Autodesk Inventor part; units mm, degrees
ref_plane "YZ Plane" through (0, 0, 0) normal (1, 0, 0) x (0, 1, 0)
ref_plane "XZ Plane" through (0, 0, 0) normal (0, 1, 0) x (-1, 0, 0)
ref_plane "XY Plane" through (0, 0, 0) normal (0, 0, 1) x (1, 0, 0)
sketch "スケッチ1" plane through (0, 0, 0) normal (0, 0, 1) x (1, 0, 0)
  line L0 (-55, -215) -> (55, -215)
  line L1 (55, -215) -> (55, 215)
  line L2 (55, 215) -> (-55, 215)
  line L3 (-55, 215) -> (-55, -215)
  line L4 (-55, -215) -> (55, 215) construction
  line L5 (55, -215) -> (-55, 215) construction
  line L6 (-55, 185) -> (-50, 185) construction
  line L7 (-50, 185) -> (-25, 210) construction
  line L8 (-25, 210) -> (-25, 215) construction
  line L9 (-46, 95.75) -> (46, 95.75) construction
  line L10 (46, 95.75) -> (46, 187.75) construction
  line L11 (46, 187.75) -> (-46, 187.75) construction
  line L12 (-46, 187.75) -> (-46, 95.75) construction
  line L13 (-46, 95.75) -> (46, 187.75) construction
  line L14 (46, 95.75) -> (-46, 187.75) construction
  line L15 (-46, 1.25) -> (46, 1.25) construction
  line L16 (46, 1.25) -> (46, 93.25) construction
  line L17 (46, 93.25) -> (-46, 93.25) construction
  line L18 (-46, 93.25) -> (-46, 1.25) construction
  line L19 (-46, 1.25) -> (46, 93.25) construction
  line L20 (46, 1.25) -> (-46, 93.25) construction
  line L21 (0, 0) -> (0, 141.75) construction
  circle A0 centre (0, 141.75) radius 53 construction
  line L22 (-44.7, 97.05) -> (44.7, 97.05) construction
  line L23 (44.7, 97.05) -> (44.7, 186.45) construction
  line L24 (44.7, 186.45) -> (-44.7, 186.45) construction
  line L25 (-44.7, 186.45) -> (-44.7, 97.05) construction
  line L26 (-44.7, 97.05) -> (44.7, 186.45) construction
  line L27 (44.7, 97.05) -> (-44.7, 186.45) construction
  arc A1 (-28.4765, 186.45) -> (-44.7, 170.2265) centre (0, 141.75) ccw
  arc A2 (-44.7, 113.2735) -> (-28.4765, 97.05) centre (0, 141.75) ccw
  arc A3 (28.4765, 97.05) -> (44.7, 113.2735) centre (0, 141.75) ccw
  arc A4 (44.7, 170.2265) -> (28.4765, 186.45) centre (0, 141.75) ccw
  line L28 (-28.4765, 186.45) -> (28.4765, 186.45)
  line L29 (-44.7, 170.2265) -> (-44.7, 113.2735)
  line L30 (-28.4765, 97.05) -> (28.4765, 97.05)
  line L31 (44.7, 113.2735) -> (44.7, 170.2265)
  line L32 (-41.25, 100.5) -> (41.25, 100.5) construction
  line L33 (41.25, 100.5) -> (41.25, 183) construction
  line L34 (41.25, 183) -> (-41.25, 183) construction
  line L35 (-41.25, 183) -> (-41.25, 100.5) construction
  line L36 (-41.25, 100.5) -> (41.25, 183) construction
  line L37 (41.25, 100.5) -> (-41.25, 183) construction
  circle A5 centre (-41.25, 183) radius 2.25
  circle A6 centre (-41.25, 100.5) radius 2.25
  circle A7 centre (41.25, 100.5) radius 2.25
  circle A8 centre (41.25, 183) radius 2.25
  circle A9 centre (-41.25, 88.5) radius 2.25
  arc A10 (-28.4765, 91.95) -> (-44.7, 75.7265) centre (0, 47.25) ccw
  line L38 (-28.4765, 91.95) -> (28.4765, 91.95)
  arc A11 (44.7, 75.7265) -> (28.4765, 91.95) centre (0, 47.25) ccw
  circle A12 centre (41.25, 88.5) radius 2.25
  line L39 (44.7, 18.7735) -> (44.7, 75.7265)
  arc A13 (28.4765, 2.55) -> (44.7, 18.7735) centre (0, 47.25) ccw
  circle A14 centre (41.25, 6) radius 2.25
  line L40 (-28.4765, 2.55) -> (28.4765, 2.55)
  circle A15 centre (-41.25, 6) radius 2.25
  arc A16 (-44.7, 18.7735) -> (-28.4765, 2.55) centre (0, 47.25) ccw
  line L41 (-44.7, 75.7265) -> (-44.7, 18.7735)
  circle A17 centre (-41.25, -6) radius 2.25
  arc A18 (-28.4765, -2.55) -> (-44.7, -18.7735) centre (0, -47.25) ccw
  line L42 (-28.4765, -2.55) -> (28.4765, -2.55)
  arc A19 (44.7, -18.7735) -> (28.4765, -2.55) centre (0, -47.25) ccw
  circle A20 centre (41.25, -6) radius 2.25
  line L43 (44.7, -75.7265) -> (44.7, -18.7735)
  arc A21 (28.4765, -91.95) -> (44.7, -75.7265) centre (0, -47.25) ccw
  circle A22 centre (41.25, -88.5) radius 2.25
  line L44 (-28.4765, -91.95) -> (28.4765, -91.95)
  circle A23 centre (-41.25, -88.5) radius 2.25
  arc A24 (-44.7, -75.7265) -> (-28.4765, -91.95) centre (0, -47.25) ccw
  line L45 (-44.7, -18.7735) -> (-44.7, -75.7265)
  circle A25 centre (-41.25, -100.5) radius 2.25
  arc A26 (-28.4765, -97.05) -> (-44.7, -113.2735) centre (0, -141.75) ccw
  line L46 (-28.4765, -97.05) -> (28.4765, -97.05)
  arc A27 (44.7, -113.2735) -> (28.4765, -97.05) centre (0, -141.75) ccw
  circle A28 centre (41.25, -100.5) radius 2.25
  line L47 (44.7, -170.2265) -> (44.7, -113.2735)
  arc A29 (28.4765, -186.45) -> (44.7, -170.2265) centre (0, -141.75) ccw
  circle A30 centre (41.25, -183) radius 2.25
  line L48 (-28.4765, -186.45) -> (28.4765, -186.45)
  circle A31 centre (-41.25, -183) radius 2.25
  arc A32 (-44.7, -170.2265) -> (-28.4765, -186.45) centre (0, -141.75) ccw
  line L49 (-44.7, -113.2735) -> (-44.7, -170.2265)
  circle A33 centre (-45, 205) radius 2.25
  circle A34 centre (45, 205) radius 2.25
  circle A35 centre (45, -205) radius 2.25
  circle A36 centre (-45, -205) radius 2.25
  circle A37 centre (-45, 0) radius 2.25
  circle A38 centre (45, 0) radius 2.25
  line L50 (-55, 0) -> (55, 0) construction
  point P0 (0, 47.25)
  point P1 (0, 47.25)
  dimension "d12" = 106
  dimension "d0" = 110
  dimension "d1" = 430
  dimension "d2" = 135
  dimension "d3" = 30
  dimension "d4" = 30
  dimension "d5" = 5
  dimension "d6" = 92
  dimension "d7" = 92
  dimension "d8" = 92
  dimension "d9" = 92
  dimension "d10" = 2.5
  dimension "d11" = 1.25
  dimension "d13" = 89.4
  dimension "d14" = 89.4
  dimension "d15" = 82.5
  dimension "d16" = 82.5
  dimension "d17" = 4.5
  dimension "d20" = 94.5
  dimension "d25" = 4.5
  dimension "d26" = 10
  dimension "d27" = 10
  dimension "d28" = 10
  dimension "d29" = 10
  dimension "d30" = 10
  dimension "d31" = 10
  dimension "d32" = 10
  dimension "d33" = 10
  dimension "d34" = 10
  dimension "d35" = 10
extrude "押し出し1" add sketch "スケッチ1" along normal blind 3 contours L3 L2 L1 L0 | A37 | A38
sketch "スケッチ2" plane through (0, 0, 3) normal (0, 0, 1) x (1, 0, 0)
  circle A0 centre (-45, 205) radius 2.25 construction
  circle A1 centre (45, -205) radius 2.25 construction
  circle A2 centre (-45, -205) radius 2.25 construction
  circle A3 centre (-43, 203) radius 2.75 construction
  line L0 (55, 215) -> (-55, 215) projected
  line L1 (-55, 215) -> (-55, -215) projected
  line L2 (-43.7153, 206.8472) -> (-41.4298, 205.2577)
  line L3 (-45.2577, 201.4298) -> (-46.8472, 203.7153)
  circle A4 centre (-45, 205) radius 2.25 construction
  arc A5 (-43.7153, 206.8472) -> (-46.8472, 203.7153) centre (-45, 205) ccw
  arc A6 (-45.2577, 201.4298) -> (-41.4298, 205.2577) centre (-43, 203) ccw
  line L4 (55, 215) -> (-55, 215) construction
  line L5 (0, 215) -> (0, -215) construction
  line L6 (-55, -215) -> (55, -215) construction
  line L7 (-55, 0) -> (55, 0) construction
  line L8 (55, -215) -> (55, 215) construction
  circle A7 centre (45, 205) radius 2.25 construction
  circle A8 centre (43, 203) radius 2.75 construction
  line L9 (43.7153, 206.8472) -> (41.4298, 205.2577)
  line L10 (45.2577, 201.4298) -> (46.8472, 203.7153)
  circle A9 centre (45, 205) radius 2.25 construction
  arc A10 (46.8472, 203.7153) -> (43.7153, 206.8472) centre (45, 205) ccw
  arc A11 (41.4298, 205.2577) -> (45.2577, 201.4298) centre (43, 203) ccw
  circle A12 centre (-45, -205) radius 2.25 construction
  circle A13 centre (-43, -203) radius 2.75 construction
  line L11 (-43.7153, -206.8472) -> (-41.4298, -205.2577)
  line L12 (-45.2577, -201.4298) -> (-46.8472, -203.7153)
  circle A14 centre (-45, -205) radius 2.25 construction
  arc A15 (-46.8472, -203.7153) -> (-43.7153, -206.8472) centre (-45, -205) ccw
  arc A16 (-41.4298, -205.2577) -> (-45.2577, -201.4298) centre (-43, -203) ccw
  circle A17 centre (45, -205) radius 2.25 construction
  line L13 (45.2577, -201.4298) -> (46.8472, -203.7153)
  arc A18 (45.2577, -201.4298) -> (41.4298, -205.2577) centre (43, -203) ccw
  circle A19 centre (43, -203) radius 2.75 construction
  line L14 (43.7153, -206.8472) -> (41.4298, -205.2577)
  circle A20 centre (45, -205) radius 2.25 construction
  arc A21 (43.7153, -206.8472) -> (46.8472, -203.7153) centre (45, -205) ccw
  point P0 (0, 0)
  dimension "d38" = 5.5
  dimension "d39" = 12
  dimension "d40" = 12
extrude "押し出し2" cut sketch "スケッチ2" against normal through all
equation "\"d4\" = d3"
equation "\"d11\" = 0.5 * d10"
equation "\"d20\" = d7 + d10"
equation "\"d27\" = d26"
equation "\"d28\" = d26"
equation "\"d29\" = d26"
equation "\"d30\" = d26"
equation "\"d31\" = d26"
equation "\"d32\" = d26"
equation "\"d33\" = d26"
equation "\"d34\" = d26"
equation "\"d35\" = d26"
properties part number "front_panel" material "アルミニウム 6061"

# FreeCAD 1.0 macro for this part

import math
import FreeCAD as App
import Part
import Sketcher

V = App.Vector
Q = App.Units.Quantity

doc = App.newDocument("Part")
body = doc.addObject("PartDesign::Body", "Body")

# Sketch on XY plane
sketch1 = doc.addObject("Sketcher::SketchObject", "Sketch")
body.addObject(sketch1)
sketch1.AttachmentSupport = (doc.XY_Plane, [""])
sketch1.MapMode = "FlatFace"
sketch1.addGeometry([
    Part.LineSegment(V(-55, 215, 0), V(-55, -215, 0)),  # 0
    Part.LineSegment(V(-55, -215, 0), V(55, -215, 0)),  # 1
    Part.LineSegment(V(55, -215, 0), V(55, 215, 0)),  # 2
    Part.LineSegment(V(55, 215, 0), V(-55, 215, 0)),  # 3
    Part.Circle(V(-45, -205, 0), V(0, 0, 1), 2.2),  # 4
    Part.Circle(V(-41.2, -183, 0), V(0, 0, 1), 2.2),  # 5
    Part.Circle(V(-41.2, -100.5, 0), V(0, 0, 1), 2.2),  # 6
    Part.Circle(V(-41.2, -88.5, 0), V(0, 0, 1), 2.2),  # 7
    Part.Circle(V(-41.2, -6, 0), V(0, 0, 1), 2.2),  # 8
    Part.ArcOfCircle(Part.Circle(V(0, -141.8, 0), V(0, 0, 1), 53), math.radians(122), math.radians(148)),  # 9
    Part.LineSegment(V(-28.5, -97, 0), V(28.5, -97, 0)),  # 10
    Part.ArcOfCircle(Part.Circle(V(0, -141.8, 0), V(0, 0, 1), 53), math.radians(32), math.radians(58)),  # 11
    Part.LineSegment(V(44.7, -113.3, 0), V(44.7, -170.2, 0)),  # 12
    Part.ArcOfCircle(Part.Circle(V(0, -141.8, 0), V(0, 0, 1), 53), math.radians(-58), math.radians(-32)),  # 13
    Part.LineSegment(V(28.5, -186.4, 0), V(-28.5, -186.4, 0)),  # 14
    Part.ArcOfCircle(Part.Circle(V(0, -141.8, 0), V(0, 0, 1), 53), math.radians(-148), math.radians(-122)),  # 15
    Part.LineSegment(V(-44.7, -170.2, 0), V(-44.7, -113.3, 0)),  # 16
    Part.Circle(V(45, -205, 0), V(0, 0, 1), 2.2),  # 17
    Part.Circle(V(41.2, -183, 0), V(0, 0, 1), 2.2),  # 18
    Part.ArcOfCircle(Part.Circle(V(0, -47.2, 0), V(0, 0, 1), 53), math.radians(122), math.radians(148)),  # 19
    Part.LineSegment(V(-28.5, -2.5, 0), V(28.5, -2.5, 0)),  # 20
    Part.ArcOfCircle(Part.Circle(V(0, -47.2, 0), V(0, 0, 1), 53), math.radians(32), math.radians(58)),  # 21
    Part.LineSegment(V(44.7, -18.8, 0), V(44.7, -75.7, 0)),  # 22
    Part.ArcOfCircle(Part.Circle(V(0, -47.2, 0), V(0, 0, 1), 53), math.radians(-58), math.radians(-32)),  # 23
    Part.LineSegment(V(28.5, -92, 0), V(-28.5, -92, 0)),  # 24
    Part.ArcOfCircle(Part.Circle(V(0, -47.2, 0), V(0, 0, 1), 53), math.radians(-148), math.radians(-122)),  # 25
    Part.LineSegment(V(-44.7, -75.7, 0), V(-44.7, -18.8, 0)),  # 26
    Part.Circle(V(41.2, -100.5, 0), V(0, 0, 1), 2.2),  # 27
    Part.Circle(V(41.2, -88.5, 0), V(0, 0, 1), 2.2),  # 28
    Part.Circle(V(41.2, -6, 0), V(0, 0, 1), 2.2),  # 29
    Part.Circle(V(-41.2, 6, 0), V(0, 0, 1), 2.2),  # 30
    Part.Circle(V(-41.2, 88.5, 0), V(0, 0, 1), 2.2),  # 31
    Part.Circle(V(-41.2, 100.5, 0), V(0, 0, 1), 2.2),  # 32
    Part.Circle(V(-45, 205, 0), V(0, 0, 1), 2.2),  # 33
    Part.Circle(V(-41.2, 183, 0), V(0, 0, 1), 2.2),  # 34
    Part.ArcOfCircle(Part.Circle(V(0, 47.2, 0), V(0, 0, 1), 53), math.radians(122), math.radians(148)),  # 35
    Part.LineSegment(V(-28.5, 92, 0), V(28.5, 92, 0)),  # 36
    Part.ArcOfCircle(Part.Circle(V(0, 47.2, 0), V(0, 0, 1), 53), math.radians(32), math.radians(58)),  # 37
    Part.LineSegment(V(44.7, 75.7, 0), V(44.7, 18.8, 0)),  # 38
    Part.ArcOfCircle(Part.Circle(V(0, 47.2, 0), V(0, 0, 1), 53), math.radians(-58), math.radians(-32)),  # 39
    Part.LineSegment(V(28.5, 2.5, 0), V(-28.5, 2.5, 0)),  # 40
    Part.ArcOfCircle(Part.Circle(V(0, 47.2, 0), V(0, 0, 1), 53), math.radians(-148), math.radians(-122)),  # 41
    Part.LineSegment(V(-44.7, 18.8, 0), V(-44.7, 75.7, 0)),  # 42
    Part.Circle(V(41.2, 6, 0), V(0, 0, 1), 2.2),  # 43
    Part.Circle(V(41.2, 88.5, 0), V(0, 0, 1), 2.2),  # 44
    Part.Circle(V(41.2, 100.5, 0), V(0, 0, 1), 2.2),  # 45
    Part.ArcOfCircle(Part.Circle(V(0, 141.8, 0), V(0, 0, 1), 53), math.radians(122), math.radians(148)),  # 46
    Part.LineSegment(V(-28.5, 186.4, 0), V(28.5, 186.4, 0)),  # 47
    Part.ArcOfCircle(Part.Circle(V(0, 141.8, 0), V(0, 0, 1), 53), math.radians(32), math.radians(58)),  # 48
    Part.LineSegment(V(44.7, 170.2, 0), V(44.7, 113.3, 0)),  # 49
    Part.ArcOfCircle(Part.Circle(V(0, 141.8, 0), V(0, 0, 1), 53), math.radians(-58), math.radians(-32)),  # 50
    Part.LineSegment(V(28.5, 97, 0), V(-28.5, 97, 0)),  # 51
    Part.ArcOfCircle(Part.Circle(V(0, 141.8, 0), V(0, 0, 1), 53), math.radians(-148), math.radians(-122)),  # 52
    Part.LineSegment(V(-44.7, 113.3, 0), V(-44.7, 170.2, 0)),  # 53
    Part.Circle(V(41.2, 183, 0), V(0, 0, 1), 2.2),  # 54
    Part.Circle(V(45, 205, 0), V(0, 0, 1), 2.2),  # 55
], False)
sketch1.addConstraint([
    Sketcher.Constraint("Coincident", 0, 2, 1, 1),
    Sketcher.Constraint("Coincident", 1, 2, 2, 1),
    Sketcher.Constraint("Coincident", 2, 2, 3, 1),
    Sketcher.Constraint("Coincident", 3, 2, 0, 1),
    Sketcher.Constraint("Coincident", 9, 1, 10, 1),
    Sketcher.Constraint("Coincident", 10, 2, 11, 2),
    Sketcher.Constraint("Coincident", 11, 1, 12, 1),
    Sketcher.Constraint("Coincident", 12, 2, 13, 2),
    Sketcher.Constraint("Coincident", 13, 1, 14, 1),
    Sketcher.Constraint("Coincident", 14, 2, 15, 2),
    Sketcher.Constraint("Coincident", 15, 1, 16, 1),
    Sketcher.Constraint("Coincident", 16, 2, 9, 2),
    Sketcher.Constraint("Coincident", 19, 1, 20, 1),
    Sketcher.Constraint("Coincident", 20, 2, 21, 2),
    Sketcher.Constraint("Coincident", 21, 1, 22, 1),
    Sketcher.Constraint("Coincident", 22, 2, 23, 2),
    Sketcher.Constraint("Coincident", 23, 1, 24, 1),
    Sketcher.Constraint("Coincident", 24, 2, 25, 2),
    Sketcher.Constraint("Coincident", 25, 1, 26, 1),
    Sketcher.Constraint("Coincident", 26, 2, 19, 2),
    Sketcher.Constraint("Coincident", 35, 1, 36, 1),
    Sketcher.Constraint("Coincident", 36, 2, 37, 2),
    Sketcher.Constraint("Coincident", 37, 1, 38, 1),
    Sketcher.Constraint("Coincident", 38, 2, 39, 2),
    Sketcher.Constraint("Coincident", 39, 1, 40, 1),
    Sketcher.Constraint("Coincident", 40, 2, 41, 2),
    Sketcher.Constraint("Coincident", 41, 1, 42, 1),
    Sketcher.Constraint("Coincident", 42, 2, 35, 2),
    Sketcher.Constraint("Coincident", 46, 1, 47, 1),
    Sketcher.Constraint("Coincident", 47, 2, 48, 2),
    Sketcher.Constraint("Coincident", 48, 1, 49, 1),
    Sketcher.Constraint("Coincident", 49, 2, 50, 2),
    Sketcher.Constraint("Coincident", 50, 1, 51, 1),
    Sketcher.Constraint("Coincident", 51, 2, 52, 2),
    Sketcher.Constraint("Coincident", 52, 1, 53, 1),
    Sketcher.Constraint("Coincident", 53, 2, 46, 2),
    Sketcher.Constraint("Vertical", 0),
    Sketcher.Constraint("Horizontal", 1),
    Sketcher.Constraint("Vertical", 2),
    Sketcher.Constraint("Horizontal", 3),
    Sketcher.Constraint("Horizontal", 10),
    Sketcher.Constraint("Vertical", 12),
    Sketcher.Constraint("Horizontal", 14),
    Sketcher.Constraint("Vertical", 16),
    Sketcher.Constraint("Horizontal", 20),
    Sketcher.Constraint("Vertical", 22),
    Sketcher.Constraint("Horizontal", 24),
    Sketcher.Constraint("Vertical", 26),
    Sketcher.Constraint("Horizontal", 36),
    Sketcher.Constraint("Vertical", 38),
    Sketcher.Constraint("Horizontal", 40),
    Sketcher.Constraint("Vertical", 42),
    Sketcher.Constraint("Horizontal", 47),
    Sketcher.Constraint("Vertical", 49),
    Sketcher.Constraint("Horizontal", 51),
    Sketcher.Constraint("Vertical", 53),
    Sketcher.Constraint("Coincident", 11, 3, 9, 3),
    Sketcher.Constraint("Coincident", 13, 3, 9, 3),
    Sketcher.Constraint("Coincident", 15, 3, 9, 3),
    Sketcher.Constraint("Coincident", 21, 3, 19, 3),
    Sketcher.Constraint("Coincident", 23, 3, 19, 3),
    Sketcher.Constraint("Coincident", 25, 3, 19, 3),
    Sketcher.Constraint("Coincident", 37, 3, 35, 3),
    Sketcher.Constraint("Coincident", 39, 3, 35, 3),
    Sketcher.Constraint("Coincident", 41, 3, 35, 3),
    Sketcher.Constraint("Coincident", 48, 3, 46, 3),
    Sketcher.Constraint("Coincident", 50, 3, 46, 3),
    Sketcher.Constraint("Coincident", 52, 3, 46, 3),
    Sketcher.Constraint("Equal", 4, 5),
    Sketcher.Constraint("Equal", 5, 6),
    Sketcher.Constraint("Equal", 6, 7),
    Sketcher.Constraint("Equal", 7, 8),
    Sketcher.Constraint("Equal", 9, 11),
    Sketcher.Constraint("Equal", 11, 13),
    Sketcher.Constraint("Equal", 13, 15),
    Sketcher.Constraint("Equal", 8, 17),
    Sketcher.Constraint("Equal", 17, 18),
    Sketcher.Constraint("Equal", 15, 19),
    Sketcher.Constraint("Equal", 19, 21),
    Sketcher.Constraint("Equal", 21, 23),
    Sketcher.Constraint("Equal", 23, 25),
    Sketcher.Constraint("Equal", 18, 27),
    Sketcher.Constraint("Equal", 27, 28),
    Sketcher.Constraint("Equal", 28, 29),
    Sketcher.Constraint("Equal", 29, 30),
    Sketcher.Constraint("Equal", 30, 31),
    Sketcher.Constraint("Equal", 31, 32),
    Sketcher.Constraint("Equal", 32, 33),
    Sketcher.Constraint("Equal", 33, 34),
    Sketcher.Constraint("Equal", 25, 35),
    Sketcher.Constraint("Equal", 35, 37),
    Sketcher.Constraint("Equal", 37, 39),
    Sketcher.Constraint("Equal", 39, 41),
    Sketcher.Constraint("Equal", 34, 43),
    Sketcher.Constraint("Equal", 43, 44),
    Sketcher.Constraint("Equal", 44, 45),
    Sketcher.Constraint("Equal", 41, 46),
    Sketcher.Constraint("Equal", 46, 48),
    Sketcher.Constraint("Equal", 48, 50),
    Sketcher.Constraint("Equal", 50, 52),
    Sketcher.Constraint("Equal", 45, 54),
    Sketcher.Constraint("Equal", 54, 55),
    Sketcher.Constraint("Symmetric", 29, 3, 30, 3, -1, 1),
    Sketcher.Constraint("Symmetric", 28, 3, 31, 3, -1, 1),
    Sketcher.Constraint("Symmetric", 27, 3, 32, 3, -1, 1),
    Sketcher.Constraint("Symmetric", 17, 3, 33, 3, -1, 1),
    Sketcher.Constraint("Symmetric", 18, 3, 34, 3, -1, 1),
    Sketcher.Constraint("Symmetric", 19, 3, 35, 3, -1, 1),
    Sketcher.Constraint("Symmetric", 8, 3, 43, 3, -1, 1),
    Sketcher.Constraint("Symmetric", 7, 3, 44, 3, -1, 1),
    Sketcher.Constraint("Symmetric", 6, 3, 45, 3, -1, 1),
    Sketcher.Constraint("Symmetric", 9, 3, 46, 3, -1, 1),
    Sketcher.Constraint("Symmetric", 5, 3, 54, 3, -1, 1),
    Sketcher.Constraint("Symmetric", 4, 3, 55, 3, -1, 1),
    Sketcher.Constraint("Symmetric", 0, 2, 2, 2, -1, 1),
    Sketcher.Constraint("Symmetric", 4, 3, 17, 3, -2),
    Sketcher.Constraint("Symmetric", 5, 3, 18, 3, -2),
    Sketcher.Constraint("Symmetric", 6, 3, 27, 3, -2),
    Sketcher.Constraint("Symmetric", 7, 3, 28, 3, -2),
    Sketcher.Constraint("Symmetric", 8, 3, 29, 3, -2),
    Sketcher.Constraint("Symmetric", 12, 2, 15, 1, -2),
    Sketcher.Constraint("Symmetric", 22, 2, 25, 1, -2),
    Sketcher.Constraint("Horizontal", 38, 2, 41, 1),
    Sketcher.Constraint("Horizontal", 49, 2, 52, 1),
    Sketcher.Constraint("Vertical", 5, 3, 6, 3),
    Sketcher.Constraint("Vertical", 6, 3, 7, 3),
    Sketcher.Constraint("Vertical", 7, 3, 8, 3),
    Sketcher.Constraint("Vertical", 10, 2, 13, 1),
    Sketcher.Constraint("Vertical", 14, 2, 19, 1),
    Sketcher.Constraint("Vertical", 12, 2, 21, 1),
    Sketcher.Constraint("Vertical", 20, 2, 23, 1),
    Sketcher.Constraint("Vertical", 24, 2, 35, 1),
    Sketcher.Constraint("Vertical", 22, 2, 37, 1),
    Sketcher.Constraint("Vertical", 36, 2, 39, 1),
    Sketcher.Constraint("Vertical", 40, 2, 46, 1),
    Sketcher.Constraint("Vertical", 38, 2, 48, 1),
    Sketcher.Constraint("Vertical", 47, 2, 50, 1),
    Sketcher.Constraint("Equal", 51, 12),
    Sketcher.Constraint("Radius", 9, Q("53 mm")),
    Sketcher.Constraint("Diameter", 4, Q("4.5 mm")),
    Sketcher.Constraint("DistanceX", 1, 1, 1, 2, Q("110 mm")),
    Sketcher.Constraint("DistanceY", 0, 2, 0, 1, Q("430 mm")),
    Sketcher.Constraint("DistanceX", 4, 3, -1, 1, Q("45 mm")),
    Sketcher.Constraint("DistanceY", 4, 3, -1, 1, Q("205 mm")),
    Sketcher.Constraint("DistanceY", 5, 3, -1, 1, Q("183 mm")),
    Sketcher.Constraint("DistanceY", 8, 3, -1, 1, Q("6 mm")),
    Sketcher.Constraint("DistanceY", 6, 3, -1, 1, Q("100.5 mm")),
    Sketcher.Constraint("DistanceY", 7, 3, -1, 1, Q("88.5 mm")),
    Sketcher.Constraint("DistanceX", -1, 1, 11, 1, Q("44.7 mm")),
    Sketcher.Constraint("DistanceX", 5, 3, -1, 1, Q("41.25 mm")),
    Sketcher.Constraint("DistanceY", 9, 3, -1, 1, Q("141.75 mm")),
    Sketcher.Constraint("DistanceY", 19, 3, -1, 1, Q("47.25 mm")),
])
pad1 = doc.addObject("PartDesign::Pad", "Pad")
body.addObject(pad1)
pad1.Profile = sketch1
pad1.Length = 3

# Sketch on XY plane
sketch2 = doc.addObject("Sketcher::SketchObject", "Sketch001")
body.addObject(sketch2)
sketch2.AttachmentSupport = (doc.XY_Plane, [""])
sketch2.MapMode = "FlatFace"
sketch2.AttachmentOffset = App.Placement(V(0, 0, 3), App.Rotation())
sketch2.addGeometry([
    Part.LineSegment(V(-41.4, 205.3, 0), V(-43.7, 206.8, 0)),  # 0
    Part.ArcOfCircle(Part.Circle(V(-45, 205, 0), V(0, 0, 1), 2.3), math.radians(55), math.radians(215)),  # 1
    Part.LineSegment(V(-46.8, 203.7, 0), V(-45.3, 201.4, 0)),  # 2
    Part.ArcOfCircle(Part.Circle(V(-43, 203, 0), V(0, 0, 1), 2.8), math.radians(-145), math.radians(55)),  # 3
    Part.ArcOfCircle(Part.Circle(V(45, 205, 0), V(0, 0, 1), 2.3), math.radians(-35), math.radians(125)),  # 4
    Part.LineSegment(V(43.7, 206.8, 0), V(41.4, 205.3, 0)),  # 5
    Part.ArcOfCircle(Part.Circle(V(43, 203, 0), V(0, 0, 1), 2.8), math.radians(125), math.radians(325)),  # 6
    Part.LineSegment(V(45.3, 201.4, 0), V(46.8, 203.7, 0)),  # 7
    Part.ArcOfCircle(Part.Circle(V(-45, -205, 0), V(0, 0, 1), 2.3), math.radians(145), math.radians(305)),  # 8
    Part.LineSegment(V(-43.7, -206.8, 0), V(-41.4, -205.3, 0)),  # 9
    Part.ArcOfCircle(Part.Circle(V(-43, -203, 0), V(0, 0, 1), 2.8), math.radians(-55), math.radians(145)),  # 10
    Part.LineSegment(V(-45.3, -201.4, 0), V(-46.8, -203.7, 0)),  # 11
    Part.LineSegment(V(46.8, -203.7, 0), V(45.3, -201.4, 0)),  # 12
    Part.ArcOfCircle(Part.Circle(V(43, -203, 0), V(0, 0, 1), 2.8), math.radians(35), math.radians(235)),  # 13
    Part.LineSegment(V(41.4, -205.3, 0), V(43.7, -206.8, 0)),  # 14
    Part.ArcOfCircle(Part.Circle(V(45, -205, 0), V(0, 0, 1), 2.3), math.radians(-125), math.radians(35)),  # 15
], False)
sketch2.addConstraint([
    Sketcher.Constraint("Tangent", 0, 2, 1, 1),
    Sketcher.Constraint("Tangent", 1, 2, 2, 1),
    Sketcher.Constraint("Tangent", 2, 2, 3, 1),
    Sketcher.Constraint("Tangent", 3, 2, 0, 1),
    Sketcher.Constraint("Tangent", 4, 2, 5, 1),
    Sketcher.Constraint("Tangent", 5, 2, 6, 1),
    Sketcher.Constraint("Tangent", 6, 2, 7, 1),
    Sketcher.Constraint("Tangent", 7, 2, 4, 1),
    Sketcher.Constraint("Tangent", 8, 2, 9, 1),
    Sketcher.Constraint("Tangent", 9, 2, 10, 1),
    Sketcher.Constraint("Tangent", 10, 2, 11, 1),
    Sketcher.Constraint("Tangent", 11, 2, 8, 1),
    Sketcher.Constraint("Tangent", 12, 2, 13, 1),
    Sketcher.Constraint("Tangent", 13, 2, 14, 1),
    Sketcher.Constraint("Tangent", 14, 2, 15, 1),
    Sketcher.Constraint("Tangent", 15, 2, 12, 1),
    Sketcher.Constraint("Equal", 1, 4),
    Sketcher.Constraint("Equal", 3, 6),
    Sketcher.Constraint("Equal", 4, 8),
    Sketcher.Constraint("Equal", 6, 10),
    Sketcher.Constraint("Equal", 10, 13),
    Sketcher.Constraint("Equal", 8, 15),
    Sketcher.Constraint("Symmetric", 4, 3, 8, 3, -1, 1),
    Sketcher.Constraint("Symmetric", 6, 3, 10, 3, -1, 1),
    Sketcher.Constraint("Symmetric", 3, 3, 13, 3, -1, 1),
    Sketcher.Constraint("Symmetric", 1, 3, 15, 3, -1, 1),
    Sketcher.Constraint("Symmetric", 1, 3, 4, 3, -2),
    Sketcher.Constraint("Symmetric", 3, 3, 6, 3, -2),
    Sketcher.Constraint("Perpendicular", 2, 5),
    Sketcher.Constraint("Radius", 3, Q("2.75 mm")),
    Sketcher.Constraint("Radius", 1, Q("2.25 mm")),
    Sketcher.Constraint("DistanceX", 1, 3, -1, 1, Q("45 mm")),
    Sketcher.Constraint("DistanceY", -1, 1, 1, 3, Q("205 mm")),
    Sketcher.Constraint("DistanceX", 3, 3, -1, 1, Q("43 mm")),
])
pocket1 = doc.addObject("PartDesign::Pocket", "Pocket")
body.addObject(pocket1)
pocket1.Profile = sketch2
pocket1.Type = "ThroughAll"

doc.recompute()
